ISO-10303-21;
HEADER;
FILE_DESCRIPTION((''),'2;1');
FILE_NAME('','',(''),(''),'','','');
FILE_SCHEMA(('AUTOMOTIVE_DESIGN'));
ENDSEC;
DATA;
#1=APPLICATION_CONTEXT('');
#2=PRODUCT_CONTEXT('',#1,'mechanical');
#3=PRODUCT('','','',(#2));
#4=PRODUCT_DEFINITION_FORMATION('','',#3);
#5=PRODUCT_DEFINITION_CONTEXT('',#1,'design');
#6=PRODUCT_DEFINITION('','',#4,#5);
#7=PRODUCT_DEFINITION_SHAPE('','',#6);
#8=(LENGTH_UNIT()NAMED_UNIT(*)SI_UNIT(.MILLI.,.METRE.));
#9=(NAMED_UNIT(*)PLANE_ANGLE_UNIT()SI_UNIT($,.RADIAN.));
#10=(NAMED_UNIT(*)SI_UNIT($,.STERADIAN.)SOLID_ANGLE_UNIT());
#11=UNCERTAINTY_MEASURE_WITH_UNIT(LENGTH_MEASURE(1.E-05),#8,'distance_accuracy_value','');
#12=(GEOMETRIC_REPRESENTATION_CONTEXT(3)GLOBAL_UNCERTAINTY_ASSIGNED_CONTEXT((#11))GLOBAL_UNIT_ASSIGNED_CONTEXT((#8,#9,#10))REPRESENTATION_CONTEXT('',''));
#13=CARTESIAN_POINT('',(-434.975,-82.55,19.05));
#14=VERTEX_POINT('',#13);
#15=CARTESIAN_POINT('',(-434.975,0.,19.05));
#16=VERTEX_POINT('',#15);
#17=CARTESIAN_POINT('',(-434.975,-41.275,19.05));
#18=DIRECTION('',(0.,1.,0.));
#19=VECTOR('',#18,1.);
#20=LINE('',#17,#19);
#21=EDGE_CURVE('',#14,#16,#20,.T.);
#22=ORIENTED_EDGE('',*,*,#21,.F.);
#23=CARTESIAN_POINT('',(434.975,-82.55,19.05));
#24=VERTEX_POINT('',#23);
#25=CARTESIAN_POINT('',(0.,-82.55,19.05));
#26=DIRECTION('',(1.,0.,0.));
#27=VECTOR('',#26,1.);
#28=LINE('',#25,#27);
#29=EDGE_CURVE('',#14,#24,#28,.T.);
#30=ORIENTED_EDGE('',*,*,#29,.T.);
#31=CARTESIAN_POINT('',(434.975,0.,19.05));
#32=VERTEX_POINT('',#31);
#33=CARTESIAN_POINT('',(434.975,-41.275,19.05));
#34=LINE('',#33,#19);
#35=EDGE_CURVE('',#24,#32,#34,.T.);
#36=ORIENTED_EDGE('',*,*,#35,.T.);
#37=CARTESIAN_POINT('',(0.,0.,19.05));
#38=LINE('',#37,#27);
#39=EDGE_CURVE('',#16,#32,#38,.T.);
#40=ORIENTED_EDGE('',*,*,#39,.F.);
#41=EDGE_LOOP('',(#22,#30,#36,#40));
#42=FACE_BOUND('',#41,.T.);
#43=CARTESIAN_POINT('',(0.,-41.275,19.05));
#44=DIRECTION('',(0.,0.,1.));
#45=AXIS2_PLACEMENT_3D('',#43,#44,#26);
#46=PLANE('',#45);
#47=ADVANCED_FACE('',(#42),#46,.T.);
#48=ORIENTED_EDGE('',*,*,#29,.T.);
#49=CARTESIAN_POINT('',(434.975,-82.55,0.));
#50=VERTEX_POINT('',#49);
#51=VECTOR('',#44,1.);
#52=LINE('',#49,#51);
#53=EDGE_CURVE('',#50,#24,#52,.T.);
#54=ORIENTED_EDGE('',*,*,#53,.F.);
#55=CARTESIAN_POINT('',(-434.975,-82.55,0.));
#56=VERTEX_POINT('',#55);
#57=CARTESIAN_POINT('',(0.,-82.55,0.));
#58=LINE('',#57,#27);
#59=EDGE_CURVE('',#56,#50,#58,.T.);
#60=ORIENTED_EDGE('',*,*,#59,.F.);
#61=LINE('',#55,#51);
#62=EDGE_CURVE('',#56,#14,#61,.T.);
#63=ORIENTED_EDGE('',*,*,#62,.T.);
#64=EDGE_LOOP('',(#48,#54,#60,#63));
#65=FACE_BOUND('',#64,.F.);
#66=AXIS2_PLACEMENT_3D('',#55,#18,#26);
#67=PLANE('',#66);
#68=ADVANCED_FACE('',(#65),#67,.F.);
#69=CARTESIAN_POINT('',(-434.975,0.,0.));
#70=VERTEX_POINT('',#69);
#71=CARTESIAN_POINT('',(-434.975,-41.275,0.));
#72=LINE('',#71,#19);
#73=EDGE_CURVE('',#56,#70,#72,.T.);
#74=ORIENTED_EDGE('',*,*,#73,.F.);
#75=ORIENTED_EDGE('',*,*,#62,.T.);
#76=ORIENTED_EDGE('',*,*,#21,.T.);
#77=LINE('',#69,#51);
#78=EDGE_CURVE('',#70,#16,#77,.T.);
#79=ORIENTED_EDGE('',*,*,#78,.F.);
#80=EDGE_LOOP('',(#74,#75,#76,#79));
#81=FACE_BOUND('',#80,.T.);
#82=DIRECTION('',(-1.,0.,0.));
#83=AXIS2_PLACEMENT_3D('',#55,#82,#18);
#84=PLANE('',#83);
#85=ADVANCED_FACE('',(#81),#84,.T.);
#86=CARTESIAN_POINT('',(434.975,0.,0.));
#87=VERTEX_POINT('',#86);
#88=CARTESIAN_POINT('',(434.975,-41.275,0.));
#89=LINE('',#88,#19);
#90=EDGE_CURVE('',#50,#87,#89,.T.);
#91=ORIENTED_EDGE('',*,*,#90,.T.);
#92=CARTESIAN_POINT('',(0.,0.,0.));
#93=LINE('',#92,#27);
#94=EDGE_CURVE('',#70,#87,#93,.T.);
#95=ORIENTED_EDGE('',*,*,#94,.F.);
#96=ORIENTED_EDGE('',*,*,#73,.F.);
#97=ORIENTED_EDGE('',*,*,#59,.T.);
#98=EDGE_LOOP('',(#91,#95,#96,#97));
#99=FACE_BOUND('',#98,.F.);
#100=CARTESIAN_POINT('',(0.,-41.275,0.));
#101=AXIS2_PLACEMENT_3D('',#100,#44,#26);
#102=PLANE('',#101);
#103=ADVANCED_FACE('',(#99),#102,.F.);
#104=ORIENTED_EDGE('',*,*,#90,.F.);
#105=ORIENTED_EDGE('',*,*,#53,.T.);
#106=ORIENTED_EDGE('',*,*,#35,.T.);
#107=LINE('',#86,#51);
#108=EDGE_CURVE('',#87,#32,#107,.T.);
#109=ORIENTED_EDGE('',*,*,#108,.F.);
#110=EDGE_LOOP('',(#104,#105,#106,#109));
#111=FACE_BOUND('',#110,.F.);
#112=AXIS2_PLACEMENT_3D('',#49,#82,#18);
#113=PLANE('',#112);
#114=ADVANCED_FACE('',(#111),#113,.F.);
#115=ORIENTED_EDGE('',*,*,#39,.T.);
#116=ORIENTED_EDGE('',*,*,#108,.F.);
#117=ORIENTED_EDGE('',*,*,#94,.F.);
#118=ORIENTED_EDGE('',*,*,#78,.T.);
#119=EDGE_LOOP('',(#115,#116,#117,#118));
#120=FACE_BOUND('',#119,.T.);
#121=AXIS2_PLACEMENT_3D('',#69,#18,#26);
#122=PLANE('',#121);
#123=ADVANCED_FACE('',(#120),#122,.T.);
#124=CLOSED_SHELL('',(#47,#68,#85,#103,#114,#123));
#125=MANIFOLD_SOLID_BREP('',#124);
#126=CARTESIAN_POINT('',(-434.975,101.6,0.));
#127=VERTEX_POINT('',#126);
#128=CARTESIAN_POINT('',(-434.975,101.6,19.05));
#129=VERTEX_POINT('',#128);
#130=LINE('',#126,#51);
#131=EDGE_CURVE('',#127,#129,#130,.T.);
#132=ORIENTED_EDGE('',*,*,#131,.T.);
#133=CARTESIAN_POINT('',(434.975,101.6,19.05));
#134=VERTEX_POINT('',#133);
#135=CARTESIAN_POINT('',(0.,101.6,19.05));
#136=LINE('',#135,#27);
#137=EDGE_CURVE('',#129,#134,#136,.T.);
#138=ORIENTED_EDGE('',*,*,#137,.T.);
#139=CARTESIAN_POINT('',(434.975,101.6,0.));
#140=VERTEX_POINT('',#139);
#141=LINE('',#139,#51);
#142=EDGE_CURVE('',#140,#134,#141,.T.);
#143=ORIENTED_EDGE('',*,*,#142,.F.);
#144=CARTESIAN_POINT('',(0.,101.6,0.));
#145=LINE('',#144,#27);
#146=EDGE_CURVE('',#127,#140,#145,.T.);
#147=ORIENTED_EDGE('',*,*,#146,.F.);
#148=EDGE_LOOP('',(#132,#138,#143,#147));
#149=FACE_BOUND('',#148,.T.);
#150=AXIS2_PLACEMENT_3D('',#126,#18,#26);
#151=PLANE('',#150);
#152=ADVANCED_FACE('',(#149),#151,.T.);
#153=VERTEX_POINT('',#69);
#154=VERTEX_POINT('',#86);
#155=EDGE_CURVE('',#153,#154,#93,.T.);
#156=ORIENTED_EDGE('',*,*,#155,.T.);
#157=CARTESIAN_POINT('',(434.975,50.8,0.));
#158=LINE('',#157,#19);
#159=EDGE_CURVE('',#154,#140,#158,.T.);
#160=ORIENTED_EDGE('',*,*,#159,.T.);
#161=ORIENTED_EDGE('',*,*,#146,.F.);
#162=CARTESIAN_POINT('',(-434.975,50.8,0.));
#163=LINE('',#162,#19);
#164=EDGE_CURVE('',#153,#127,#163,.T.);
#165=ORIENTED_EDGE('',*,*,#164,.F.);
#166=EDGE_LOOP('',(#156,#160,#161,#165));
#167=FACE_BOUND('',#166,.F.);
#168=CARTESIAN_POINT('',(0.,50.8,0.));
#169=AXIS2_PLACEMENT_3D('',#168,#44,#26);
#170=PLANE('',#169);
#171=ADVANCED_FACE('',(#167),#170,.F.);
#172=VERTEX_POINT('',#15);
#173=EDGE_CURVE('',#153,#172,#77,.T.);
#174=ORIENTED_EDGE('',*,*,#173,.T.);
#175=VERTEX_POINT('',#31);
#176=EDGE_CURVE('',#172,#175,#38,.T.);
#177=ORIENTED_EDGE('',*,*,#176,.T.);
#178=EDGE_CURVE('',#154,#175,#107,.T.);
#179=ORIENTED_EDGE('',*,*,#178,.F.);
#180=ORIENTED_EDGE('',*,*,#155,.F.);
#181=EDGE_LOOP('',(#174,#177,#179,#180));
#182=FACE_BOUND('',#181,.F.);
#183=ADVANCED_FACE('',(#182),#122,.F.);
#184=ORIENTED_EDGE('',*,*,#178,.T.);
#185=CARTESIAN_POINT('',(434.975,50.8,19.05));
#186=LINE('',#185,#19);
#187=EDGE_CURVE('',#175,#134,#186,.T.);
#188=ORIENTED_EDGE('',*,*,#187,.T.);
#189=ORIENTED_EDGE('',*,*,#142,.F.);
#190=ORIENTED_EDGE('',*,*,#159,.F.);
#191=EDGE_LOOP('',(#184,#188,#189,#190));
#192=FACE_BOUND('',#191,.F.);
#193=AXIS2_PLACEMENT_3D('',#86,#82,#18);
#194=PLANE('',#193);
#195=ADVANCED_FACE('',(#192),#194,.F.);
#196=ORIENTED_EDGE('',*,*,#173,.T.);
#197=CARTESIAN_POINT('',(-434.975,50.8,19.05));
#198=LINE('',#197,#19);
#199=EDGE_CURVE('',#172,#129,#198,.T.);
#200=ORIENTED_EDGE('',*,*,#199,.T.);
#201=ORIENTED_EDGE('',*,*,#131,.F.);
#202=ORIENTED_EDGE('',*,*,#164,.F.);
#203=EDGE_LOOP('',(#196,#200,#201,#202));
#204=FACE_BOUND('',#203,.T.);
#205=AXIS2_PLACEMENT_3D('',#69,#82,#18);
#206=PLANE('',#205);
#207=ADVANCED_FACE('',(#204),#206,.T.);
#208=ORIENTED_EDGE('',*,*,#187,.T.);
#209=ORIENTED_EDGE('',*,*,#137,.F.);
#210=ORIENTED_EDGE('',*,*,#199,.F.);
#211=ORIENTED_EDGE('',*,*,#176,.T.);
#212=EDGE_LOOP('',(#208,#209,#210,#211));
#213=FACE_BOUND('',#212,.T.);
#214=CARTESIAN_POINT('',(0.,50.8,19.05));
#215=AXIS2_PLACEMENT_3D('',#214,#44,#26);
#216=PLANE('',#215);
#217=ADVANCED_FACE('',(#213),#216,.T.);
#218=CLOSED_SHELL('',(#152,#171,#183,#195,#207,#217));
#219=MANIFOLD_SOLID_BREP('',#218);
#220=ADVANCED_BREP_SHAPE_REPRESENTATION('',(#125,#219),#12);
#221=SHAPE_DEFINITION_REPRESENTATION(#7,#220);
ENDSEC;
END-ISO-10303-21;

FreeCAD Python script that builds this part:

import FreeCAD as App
import Part
import Sketcher
Q = App.Units.Quantity


def add_polygon(sketch, points):
    """Adds a closed chain of lines whose ends are joined by coincident constraints."""
    first, n = sketch.GeometryCount, len(points)
    for a, b in zip(points, points[1:] + points[:1]):
        sketch.addGeometry(Part.LineSegment(App.Vector(*a, 0), App.Vector(*b, 0)), False)
    for i in range(n):
        sketch.addConstraint(Sketcher.Constraint("Coincident", first + i, 2, first + (i + 1) % n, 1))

doc = App.newDocument("Part")
params = doc.addObject("Spreadsheet::Sheet", "Params")
for row, (alias, value) in enumerate([
    ("sketch1_height", "4 in"),
    ("sketch1_width", "34.25 in"),
    ("pad1_length", "0.75 in"),
    ("sketch2_width", "34.25 in"),
    ("sketch2_height", "3.25 in"),
    ("pad2_length", "0.75 in"),
], start=1):
    params.set(f"A{row}", alias)
    params.set(f"B{row}", "=" + value)
    params.setAlias(f"B{row}", alias)

body = doc.addObject("PartDesign::Body", "Body")

# Sketch on XY plane
sketch1 = body.newObject("Sketcher::SketchObject", "Sketch")
sketch1.AttachmentSupport = (doc.getObject("XY_Plane"), [""])
sketch1.MapMode = "FlatFace"
add_polygon(sketch1, [(-434.975, 101.6), (-434.975, 0), (434.975, 0), (434.975, 101.6)])  # lines 0-3
sketch1.addConstraint([
    Sketcher.Constraint("Vertical", 0),
    Sketcher.Constraint("Horizontal", 1),
    Sketcher.Constraint("Vertical", 2),
    Sketcher.Constraint("Horizontal", 3),
    Sketcher.Constraint("Symmetric", 0, 2, 1, 2, -1, 1),
    Sketcher.Constraint("DistanceY", 0, 2, 0, 1, Q("4 in")),
    Sketcher.Constraint("DistanceX", 1, 1, 1, 2, Q("34.25 in")),
])
sketch1.setExpression("Constraints[9]", "Params.sketch1_height")
sketch1.setExpression("Constraints[10]", "Params.sketch1_width")
pad1 = body.newObject("PartDesign::Pad", "Pad")
pad1.Profile = sketch1
pad1.setExpression("Length", "Params.pad1_length")
body2 = doc.addObject("PartDesign::Body", "Body001")

# Sketch on XY plane
sketch2 = body2.newObject("Sketcher::SketchObject", "Sketch001")
sketch2.AttachmentSupport = (doc.getObject("XY_Plane001"), [""])
sketch2.MapMode = "FlatFace"
add_polygon(sketch2, [(-434.975, 0), (-434.975, -82.55), (434.975, -82.55), (434.975, 0)])  # lines 0-3
sketch2.addConstraint([
    Sketcher.Constraint("Vertical", 0),
    Sketcher.Constraint("Horizontal", 1),
    Sketcher.Constraint("Vertical", 2),
    Sketcher.Constraint("Horizontal", 3),
    Sketcher.Constraint("Symmetric", 2, 2, 3, 2, -1, 1),
    Sketcher.Constraint("DistanceX", 1, 1, 1, 2, Q("34.25 in")),
    Sketcher.Constraint("DistanceY", 0, 2, 0, 1, Q("3.25 in")),
])
sketch2.setExpression("Constraints[9]", "Params.sketch2_width")
sketch2.setExpression("Constraints[10]", "Params.sketch2_height")
pad2 = body2.newObject("PartDesign::Pad", "Pad001")
pad2.Profile = sketch2
pad2.setExpression("Length", "Params.pad2_length")

doc.recompute()
